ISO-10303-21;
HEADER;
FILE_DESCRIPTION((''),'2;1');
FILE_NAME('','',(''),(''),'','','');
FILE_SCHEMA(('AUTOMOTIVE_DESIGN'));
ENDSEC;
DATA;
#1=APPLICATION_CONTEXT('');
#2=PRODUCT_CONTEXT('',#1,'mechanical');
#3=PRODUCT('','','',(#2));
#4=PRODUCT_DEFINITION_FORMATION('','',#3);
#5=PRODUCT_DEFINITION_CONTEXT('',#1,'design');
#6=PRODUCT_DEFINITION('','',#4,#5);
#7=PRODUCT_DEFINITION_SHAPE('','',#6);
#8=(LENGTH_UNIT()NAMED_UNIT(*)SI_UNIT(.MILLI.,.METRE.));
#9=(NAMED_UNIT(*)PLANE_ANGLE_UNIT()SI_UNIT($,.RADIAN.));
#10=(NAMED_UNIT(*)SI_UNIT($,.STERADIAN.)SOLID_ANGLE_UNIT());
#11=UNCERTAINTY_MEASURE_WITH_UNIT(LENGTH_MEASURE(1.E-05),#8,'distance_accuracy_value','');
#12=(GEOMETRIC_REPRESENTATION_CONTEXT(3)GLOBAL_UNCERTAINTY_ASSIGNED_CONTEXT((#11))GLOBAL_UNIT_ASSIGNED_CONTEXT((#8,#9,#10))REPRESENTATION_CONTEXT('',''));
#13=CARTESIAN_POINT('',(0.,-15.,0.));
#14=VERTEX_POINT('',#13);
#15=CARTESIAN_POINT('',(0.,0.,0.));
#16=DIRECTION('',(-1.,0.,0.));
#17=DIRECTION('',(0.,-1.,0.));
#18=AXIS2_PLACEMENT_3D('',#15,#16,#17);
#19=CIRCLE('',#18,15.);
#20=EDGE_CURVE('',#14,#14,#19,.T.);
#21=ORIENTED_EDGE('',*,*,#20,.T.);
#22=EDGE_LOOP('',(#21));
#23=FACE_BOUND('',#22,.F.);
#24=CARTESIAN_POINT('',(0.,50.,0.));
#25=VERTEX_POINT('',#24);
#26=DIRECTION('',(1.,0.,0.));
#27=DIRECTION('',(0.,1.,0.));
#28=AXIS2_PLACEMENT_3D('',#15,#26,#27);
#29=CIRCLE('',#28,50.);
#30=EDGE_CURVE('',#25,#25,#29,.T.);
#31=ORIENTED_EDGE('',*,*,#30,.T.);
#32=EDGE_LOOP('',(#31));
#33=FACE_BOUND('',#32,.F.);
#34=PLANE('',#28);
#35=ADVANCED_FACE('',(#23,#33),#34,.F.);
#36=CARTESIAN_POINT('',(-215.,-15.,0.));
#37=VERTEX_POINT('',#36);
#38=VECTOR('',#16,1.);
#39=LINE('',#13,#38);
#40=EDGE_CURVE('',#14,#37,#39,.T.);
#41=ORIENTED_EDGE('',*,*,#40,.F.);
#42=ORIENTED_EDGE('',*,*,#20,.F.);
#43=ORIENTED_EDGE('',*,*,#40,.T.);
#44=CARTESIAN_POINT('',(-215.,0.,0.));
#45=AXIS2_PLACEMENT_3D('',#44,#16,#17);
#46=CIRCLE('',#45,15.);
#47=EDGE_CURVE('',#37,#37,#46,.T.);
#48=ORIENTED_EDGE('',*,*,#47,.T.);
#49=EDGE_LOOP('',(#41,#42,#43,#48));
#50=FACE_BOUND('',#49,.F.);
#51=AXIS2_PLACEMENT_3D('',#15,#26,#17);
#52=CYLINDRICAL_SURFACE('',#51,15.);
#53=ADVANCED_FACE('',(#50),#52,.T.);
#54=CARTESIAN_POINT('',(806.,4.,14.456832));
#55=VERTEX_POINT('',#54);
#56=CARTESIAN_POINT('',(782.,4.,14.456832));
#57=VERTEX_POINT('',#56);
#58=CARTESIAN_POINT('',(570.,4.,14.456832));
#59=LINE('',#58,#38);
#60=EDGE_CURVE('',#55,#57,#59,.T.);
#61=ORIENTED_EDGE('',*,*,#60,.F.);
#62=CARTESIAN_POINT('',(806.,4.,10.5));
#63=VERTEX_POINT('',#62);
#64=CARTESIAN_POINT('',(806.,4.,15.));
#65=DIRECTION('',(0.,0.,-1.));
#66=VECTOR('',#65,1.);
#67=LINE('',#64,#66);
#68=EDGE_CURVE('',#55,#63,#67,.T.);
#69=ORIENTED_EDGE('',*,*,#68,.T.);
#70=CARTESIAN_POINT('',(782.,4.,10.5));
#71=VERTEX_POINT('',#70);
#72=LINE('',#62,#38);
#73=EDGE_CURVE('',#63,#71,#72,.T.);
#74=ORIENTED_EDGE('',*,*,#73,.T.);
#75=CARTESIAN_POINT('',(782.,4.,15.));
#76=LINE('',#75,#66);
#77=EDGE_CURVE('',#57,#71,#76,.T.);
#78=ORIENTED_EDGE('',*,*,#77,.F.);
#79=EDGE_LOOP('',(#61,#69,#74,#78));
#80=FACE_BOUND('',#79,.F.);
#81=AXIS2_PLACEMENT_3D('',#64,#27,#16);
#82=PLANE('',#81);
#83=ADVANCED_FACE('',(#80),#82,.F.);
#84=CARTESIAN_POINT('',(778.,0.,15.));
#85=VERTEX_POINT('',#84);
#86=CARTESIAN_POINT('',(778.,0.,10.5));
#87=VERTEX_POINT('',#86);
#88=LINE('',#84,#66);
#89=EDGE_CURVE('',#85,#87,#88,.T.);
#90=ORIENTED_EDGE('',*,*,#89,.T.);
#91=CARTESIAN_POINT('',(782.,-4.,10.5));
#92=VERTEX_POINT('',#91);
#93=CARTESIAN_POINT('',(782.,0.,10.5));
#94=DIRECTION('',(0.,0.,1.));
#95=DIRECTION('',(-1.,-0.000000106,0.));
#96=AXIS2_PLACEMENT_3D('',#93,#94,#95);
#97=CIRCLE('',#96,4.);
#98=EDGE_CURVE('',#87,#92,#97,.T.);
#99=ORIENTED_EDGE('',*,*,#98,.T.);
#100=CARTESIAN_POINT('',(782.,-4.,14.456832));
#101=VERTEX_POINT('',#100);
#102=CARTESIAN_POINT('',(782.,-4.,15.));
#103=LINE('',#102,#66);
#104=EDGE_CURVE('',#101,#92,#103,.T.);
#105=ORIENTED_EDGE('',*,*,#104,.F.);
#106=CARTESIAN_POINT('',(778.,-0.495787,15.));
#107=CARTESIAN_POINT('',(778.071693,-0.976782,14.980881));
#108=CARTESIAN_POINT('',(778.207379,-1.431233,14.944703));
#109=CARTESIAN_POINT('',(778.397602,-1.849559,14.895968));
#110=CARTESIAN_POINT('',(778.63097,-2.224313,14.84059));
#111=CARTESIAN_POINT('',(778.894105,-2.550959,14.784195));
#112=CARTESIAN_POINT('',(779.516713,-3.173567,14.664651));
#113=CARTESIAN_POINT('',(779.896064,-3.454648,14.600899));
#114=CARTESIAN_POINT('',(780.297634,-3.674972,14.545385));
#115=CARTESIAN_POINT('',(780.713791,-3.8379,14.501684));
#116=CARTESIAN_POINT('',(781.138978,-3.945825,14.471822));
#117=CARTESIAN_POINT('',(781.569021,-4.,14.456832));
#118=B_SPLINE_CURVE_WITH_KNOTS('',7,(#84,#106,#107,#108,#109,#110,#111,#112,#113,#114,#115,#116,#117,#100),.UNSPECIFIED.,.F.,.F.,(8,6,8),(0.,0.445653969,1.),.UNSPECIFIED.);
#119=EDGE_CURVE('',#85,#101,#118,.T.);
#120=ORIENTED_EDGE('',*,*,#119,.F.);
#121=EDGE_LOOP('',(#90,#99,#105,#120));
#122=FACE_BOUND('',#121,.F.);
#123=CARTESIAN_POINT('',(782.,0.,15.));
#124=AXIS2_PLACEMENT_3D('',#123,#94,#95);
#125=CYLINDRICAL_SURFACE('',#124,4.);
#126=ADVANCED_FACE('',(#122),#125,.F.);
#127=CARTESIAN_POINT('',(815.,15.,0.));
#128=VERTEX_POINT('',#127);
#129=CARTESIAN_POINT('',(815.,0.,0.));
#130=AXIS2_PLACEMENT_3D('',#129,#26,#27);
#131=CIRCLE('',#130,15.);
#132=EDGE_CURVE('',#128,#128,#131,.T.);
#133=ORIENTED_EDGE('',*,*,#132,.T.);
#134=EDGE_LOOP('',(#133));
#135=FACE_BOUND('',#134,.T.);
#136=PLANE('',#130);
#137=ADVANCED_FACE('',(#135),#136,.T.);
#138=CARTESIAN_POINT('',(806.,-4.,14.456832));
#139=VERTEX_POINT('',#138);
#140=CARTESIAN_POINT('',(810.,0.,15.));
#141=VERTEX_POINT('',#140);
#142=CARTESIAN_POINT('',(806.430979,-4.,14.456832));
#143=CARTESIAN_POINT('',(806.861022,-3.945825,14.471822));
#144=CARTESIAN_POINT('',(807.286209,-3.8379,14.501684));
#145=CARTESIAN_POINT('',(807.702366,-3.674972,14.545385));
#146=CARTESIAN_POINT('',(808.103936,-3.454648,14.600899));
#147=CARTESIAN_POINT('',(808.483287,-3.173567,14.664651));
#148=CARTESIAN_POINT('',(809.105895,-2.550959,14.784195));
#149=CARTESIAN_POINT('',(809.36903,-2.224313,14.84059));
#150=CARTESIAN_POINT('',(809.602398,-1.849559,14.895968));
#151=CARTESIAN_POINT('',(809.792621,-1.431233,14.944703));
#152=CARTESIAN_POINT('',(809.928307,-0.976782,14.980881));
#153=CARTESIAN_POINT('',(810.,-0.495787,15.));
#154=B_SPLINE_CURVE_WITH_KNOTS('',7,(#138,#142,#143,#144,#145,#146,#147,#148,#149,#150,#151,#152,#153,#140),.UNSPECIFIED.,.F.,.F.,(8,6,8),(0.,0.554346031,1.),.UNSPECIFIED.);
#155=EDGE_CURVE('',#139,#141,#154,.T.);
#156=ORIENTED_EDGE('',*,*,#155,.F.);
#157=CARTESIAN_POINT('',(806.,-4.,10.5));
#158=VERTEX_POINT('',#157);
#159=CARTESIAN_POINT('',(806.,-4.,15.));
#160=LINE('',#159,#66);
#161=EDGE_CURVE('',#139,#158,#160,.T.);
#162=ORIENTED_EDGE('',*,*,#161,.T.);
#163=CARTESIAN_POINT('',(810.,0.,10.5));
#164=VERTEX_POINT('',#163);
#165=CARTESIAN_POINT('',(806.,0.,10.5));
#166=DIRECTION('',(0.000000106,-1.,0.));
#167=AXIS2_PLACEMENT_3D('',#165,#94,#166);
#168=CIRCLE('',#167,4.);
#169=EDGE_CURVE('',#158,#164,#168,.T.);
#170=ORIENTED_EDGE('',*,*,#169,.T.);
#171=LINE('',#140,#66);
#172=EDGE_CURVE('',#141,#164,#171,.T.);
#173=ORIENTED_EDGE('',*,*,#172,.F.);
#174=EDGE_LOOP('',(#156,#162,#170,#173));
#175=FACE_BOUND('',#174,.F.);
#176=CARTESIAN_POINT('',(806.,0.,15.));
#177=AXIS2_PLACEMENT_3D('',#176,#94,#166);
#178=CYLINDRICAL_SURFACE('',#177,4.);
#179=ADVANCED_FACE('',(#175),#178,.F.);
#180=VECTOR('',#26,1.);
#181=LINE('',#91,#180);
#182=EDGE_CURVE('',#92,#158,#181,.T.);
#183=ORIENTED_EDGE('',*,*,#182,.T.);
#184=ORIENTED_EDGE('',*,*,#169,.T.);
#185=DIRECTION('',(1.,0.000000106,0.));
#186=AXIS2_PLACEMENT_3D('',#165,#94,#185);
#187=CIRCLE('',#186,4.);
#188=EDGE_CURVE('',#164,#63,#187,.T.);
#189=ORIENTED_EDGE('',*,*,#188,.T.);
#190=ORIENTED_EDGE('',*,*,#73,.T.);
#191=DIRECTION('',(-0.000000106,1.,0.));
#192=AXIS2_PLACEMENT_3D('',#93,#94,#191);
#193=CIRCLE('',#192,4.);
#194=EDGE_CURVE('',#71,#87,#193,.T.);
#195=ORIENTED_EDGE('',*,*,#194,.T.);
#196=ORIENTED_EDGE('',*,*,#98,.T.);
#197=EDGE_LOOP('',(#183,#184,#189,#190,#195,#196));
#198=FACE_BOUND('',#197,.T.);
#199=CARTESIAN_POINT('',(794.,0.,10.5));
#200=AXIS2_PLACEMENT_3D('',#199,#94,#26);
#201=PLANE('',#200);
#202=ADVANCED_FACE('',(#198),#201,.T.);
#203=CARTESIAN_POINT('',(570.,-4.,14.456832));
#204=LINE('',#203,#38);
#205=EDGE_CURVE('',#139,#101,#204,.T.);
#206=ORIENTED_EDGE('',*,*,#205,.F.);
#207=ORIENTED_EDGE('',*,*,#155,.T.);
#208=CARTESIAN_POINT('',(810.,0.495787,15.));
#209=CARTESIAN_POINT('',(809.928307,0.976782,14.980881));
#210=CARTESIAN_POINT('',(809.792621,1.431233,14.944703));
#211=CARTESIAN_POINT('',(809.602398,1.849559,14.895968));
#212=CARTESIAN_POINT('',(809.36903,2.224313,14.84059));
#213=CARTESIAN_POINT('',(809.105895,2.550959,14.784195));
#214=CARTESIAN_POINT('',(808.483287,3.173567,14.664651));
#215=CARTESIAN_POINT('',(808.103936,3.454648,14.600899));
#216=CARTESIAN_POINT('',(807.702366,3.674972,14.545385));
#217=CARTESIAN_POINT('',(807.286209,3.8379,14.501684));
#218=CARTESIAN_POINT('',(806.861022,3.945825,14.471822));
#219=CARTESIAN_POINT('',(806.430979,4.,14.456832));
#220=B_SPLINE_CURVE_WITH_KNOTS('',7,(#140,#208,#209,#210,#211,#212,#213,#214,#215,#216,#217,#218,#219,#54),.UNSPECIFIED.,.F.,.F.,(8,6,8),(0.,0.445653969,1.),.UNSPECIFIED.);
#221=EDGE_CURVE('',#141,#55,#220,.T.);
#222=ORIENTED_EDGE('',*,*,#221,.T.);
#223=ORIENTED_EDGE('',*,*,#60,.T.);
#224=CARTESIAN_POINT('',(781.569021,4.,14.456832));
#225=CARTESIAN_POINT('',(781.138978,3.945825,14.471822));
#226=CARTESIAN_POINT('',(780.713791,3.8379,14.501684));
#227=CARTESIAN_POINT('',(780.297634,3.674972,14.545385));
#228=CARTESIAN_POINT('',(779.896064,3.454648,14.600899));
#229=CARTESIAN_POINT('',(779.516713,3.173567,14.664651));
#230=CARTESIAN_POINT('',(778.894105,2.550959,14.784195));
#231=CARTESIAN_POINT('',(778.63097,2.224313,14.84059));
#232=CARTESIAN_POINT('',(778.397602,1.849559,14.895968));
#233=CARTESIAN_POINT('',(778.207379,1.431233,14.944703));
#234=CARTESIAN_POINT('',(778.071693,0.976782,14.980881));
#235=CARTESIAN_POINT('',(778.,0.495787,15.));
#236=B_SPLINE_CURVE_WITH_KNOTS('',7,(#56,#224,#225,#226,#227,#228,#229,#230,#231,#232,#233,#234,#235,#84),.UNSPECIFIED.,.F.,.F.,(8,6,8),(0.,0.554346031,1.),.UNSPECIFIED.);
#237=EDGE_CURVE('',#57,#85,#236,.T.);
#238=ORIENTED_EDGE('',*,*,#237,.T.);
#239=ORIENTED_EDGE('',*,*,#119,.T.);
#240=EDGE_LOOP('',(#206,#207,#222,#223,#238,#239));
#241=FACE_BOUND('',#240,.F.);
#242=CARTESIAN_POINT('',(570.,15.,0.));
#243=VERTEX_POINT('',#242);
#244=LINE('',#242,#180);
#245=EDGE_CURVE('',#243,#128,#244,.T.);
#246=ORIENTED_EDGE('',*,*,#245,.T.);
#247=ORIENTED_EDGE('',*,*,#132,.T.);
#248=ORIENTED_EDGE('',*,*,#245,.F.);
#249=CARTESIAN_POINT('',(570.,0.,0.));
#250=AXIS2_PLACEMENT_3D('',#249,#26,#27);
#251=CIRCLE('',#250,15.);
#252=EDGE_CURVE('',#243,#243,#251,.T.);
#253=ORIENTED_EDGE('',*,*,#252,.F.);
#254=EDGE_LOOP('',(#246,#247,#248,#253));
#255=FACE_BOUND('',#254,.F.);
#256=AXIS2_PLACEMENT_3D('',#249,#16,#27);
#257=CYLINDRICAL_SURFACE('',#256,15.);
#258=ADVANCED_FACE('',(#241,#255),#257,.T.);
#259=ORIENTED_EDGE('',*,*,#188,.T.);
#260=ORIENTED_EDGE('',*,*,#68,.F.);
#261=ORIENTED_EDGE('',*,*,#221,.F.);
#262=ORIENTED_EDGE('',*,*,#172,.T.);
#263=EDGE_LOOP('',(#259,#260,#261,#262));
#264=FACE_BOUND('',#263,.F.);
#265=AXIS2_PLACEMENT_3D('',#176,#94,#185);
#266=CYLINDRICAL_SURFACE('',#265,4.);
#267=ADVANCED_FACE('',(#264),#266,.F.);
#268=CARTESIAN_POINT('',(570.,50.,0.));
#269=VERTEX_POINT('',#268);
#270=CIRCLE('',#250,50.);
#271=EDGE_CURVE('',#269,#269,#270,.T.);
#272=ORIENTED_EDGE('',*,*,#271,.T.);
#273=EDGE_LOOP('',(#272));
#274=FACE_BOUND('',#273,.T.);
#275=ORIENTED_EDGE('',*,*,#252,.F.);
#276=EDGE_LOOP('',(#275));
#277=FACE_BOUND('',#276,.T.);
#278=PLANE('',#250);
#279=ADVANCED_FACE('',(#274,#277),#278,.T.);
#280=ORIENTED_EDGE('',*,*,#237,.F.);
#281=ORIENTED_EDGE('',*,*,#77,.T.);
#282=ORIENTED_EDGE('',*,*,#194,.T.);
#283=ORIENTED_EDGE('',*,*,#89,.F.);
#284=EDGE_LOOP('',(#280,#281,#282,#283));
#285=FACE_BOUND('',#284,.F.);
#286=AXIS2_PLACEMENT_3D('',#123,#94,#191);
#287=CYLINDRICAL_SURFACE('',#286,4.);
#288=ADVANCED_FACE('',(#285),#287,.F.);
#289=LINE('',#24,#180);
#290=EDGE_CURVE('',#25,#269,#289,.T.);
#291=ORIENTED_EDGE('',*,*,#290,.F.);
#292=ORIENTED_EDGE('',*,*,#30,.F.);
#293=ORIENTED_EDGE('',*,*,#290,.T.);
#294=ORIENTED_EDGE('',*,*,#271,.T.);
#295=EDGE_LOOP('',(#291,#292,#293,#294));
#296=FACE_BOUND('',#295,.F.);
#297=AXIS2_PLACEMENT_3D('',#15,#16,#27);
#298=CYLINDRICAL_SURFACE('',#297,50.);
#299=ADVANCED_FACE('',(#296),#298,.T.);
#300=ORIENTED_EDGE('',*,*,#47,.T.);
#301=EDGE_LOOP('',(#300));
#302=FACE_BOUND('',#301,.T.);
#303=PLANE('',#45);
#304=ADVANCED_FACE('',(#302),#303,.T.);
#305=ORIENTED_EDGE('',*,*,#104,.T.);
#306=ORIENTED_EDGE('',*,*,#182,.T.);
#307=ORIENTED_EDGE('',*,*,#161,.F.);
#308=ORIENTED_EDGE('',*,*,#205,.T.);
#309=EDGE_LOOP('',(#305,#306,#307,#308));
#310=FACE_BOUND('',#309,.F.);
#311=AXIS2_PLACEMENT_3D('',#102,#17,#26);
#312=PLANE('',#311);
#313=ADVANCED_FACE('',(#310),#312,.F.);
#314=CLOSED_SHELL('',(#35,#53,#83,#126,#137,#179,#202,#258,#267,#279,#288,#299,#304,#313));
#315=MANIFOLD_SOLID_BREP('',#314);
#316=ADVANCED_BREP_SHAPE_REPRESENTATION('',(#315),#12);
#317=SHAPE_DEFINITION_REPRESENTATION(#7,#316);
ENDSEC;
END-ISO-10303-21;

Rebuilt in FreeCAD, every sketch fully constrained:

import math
import FreeCAD as App
import Part
import Sketcher

V = App.Vector
Q = App.Units.Quantity

doc = App.newDocument("Part")
body = doc.addObject("PartDesign::Body", "Body")

# Sketch on YZ plane
sketch1 = doc.addObject("Sketcher::SketchObject", "Sketch")
body.addObject(sketch1)
sketch1.AttachmentSupport = (doc.YZ_Plane, [""])
sketch1.MapMode = "FlatFace"
sketch1.addGeometry(Part.Circle(V(0, 0, 0), V(0, 0, 1), 50), False)
sketch1.addConstraint(Sketcher.Constraint("Coincident", 0, 3, -1, 1))
sketch1.addConstraint(Sketcher.Constraint("Diameter", 0, Q("100 mm")))
pad1 = doc.addObject("PartDesign::Pad", "Pad")
body.addObject(pad1)
pad1.Profile = sketch1
pad1.Length = 570

# Sketch on YZ plane
sketch2 = doc.addObject("Sketcher::SketchObject", "Sketch001")
body.addObject(sketch2)
sketch2.AttachmentSupport = (doc.YZ_Plane, [""])
sketch2.MapMode = "FlatFace"
sketch2.addGeometry(Part.Circle(V(0, 0, 0), V(0, 0, 1), 15), False)
sketch2.addConstraint(Sketcher.Constraint("Coincident", 0, 3, -1, 1))
sketch2.addConstraint(Sketcher.Constraint("Diameter", 0, Q("30 mm")))
pad2 = doc.addObject("PartDesign::Pad", "Pad001")
body.addObject(pad2)
pad2.Profile = sketch2
pad2.Length = 215
pad2.Reversed = True

# Sketch on YZ plane
sketch3 = doc.addObject("Sketcher::SketchObject", "Sketch002")
body.addObject(sketch3)
sketch3.AttachmentSupport = (doc.YZ_Plane, [""])
sketch3.MapMode = "FlatFace"
sketch3.AttachmentOffset = App.Placement(V(0, 0, 570), App.Rotation())
sketch3.addGeometry(Part.Circle(V(0, 0, 0), V(0, 0, 1), 15), False)
sketch3.addConstraint(Sketcher.Constraint("Coincident", 0, 3, -1, 1))
sketch3.addConstraint(Sketcher.Constraint("Diameter", 0, Q("30 mm")))
pad3 = doc.addObject("PartDesign::Pad", "Pad002")
body.addObject(pad3)
pad3.Profile = sketch3
pad3.Length = 245

# Sketch on XY plane
sketch4 = doc.addObject("Sketcher::SketchObject", "Sketch003")
body.addObject(sketch4)
sketch4.AttachmentSupport = (doc.XY_Plane, [""])
sketch4.MapMode = "FlatFace"
sketch4.AttachmentOffset = App.Placement(V(0, 0, 15), App.Rotation())
sketch4.addGeometry(Part.ArcOfCircle(Part.Circle(V(806, 0, 0), V(0, 0, 1), 4), math.radians(0), math.radians(90)), False)
sketch4.addGeometry(Part.LineSegment(V(806, 4, 0), V(782, 4, 0)), False)
sketch4.addGeometry(Part.ArcOfCircle(Part.Circle(V(782, 0, 0), V(0, 0, 1), 4), math.radians(90), math.radians(180)), False)
sketch4.addGeometry(Part.ArcOfCircle(Part.Circle(V(782, 0, 0), V(0, 0, 1), 4), math.radians(-180), math.radians(-90)), False)
sketch4.addGeometry(Part.LineSegment(V(782, -4, 0), V(806, -4, 0)), False)
sketch4.addGeometry(Part.ArcOfCircle(Part.Circle(V(806, 0, 0), V(0, 0, 1), 4), math.radians(-90), math.radians(0)), False)
sketch4.addConstraint(Sketcher.Constraint("Tangent", 0, 2, 1, 1))
sketch4.addConstraint(Sketcher.Constraint("Tangent", 1, 2, 2, 1))
sketch4.addConstraint(Sketcher.Constraint("Tangent", 2, 2, 3, 1))
sketch4.addConstraint(Sketcher.Constraint("Tangent", 3, 2, 4, 1))
sketch4.addConstraint(Sketcher.Constraint("Tangent", 4, 2, 5, 1))
sketch4.addConstraint(Sketcher.Constraint("Tangent", 5, 2, 0, 1))
sketch4.addConstraint(Sketcher.Constraint("Horizontal", 1))
sketch4.addConstraint(Sketcher.Constraint("Horizontal", 4))
sketch4.addConstraint(Sketcher.Constraint("Equal", 0, 2))
sketch4.addConstraint(Sketcher.Constraint("Equal", 2, 3))
sketch4.addConstraint(Sketcher.Constraint("PointOnObject", 0, 3, -1))
sketch4.addConstraint(Sketcher.Constraint("PointOnObject", 2, 2, -1))
sketch4.addConstraint(Sketcher.Constraint("PointOnObject", 5, 2, -1))
sketch4.addConstraint(Sketcher.Constraint("Radius", 0, Q("4 mm")))
sketch4.addConstraint(Sketcher.Constraint("DistanceX", 1, 2, 1, 1, Q("24 mm")))
sketch4.addConstraint(Sketcher.Constraint("DistanceX", -1, 1, 0, 3, Q("806 mm")))
pocket1 = doc.addObject("PartDesign::Pocket", "Pocket")
body.addObject(pocket1)
pocket1.Profile = sketch4
pocket1.Length = 4.5

doc.recompute()
